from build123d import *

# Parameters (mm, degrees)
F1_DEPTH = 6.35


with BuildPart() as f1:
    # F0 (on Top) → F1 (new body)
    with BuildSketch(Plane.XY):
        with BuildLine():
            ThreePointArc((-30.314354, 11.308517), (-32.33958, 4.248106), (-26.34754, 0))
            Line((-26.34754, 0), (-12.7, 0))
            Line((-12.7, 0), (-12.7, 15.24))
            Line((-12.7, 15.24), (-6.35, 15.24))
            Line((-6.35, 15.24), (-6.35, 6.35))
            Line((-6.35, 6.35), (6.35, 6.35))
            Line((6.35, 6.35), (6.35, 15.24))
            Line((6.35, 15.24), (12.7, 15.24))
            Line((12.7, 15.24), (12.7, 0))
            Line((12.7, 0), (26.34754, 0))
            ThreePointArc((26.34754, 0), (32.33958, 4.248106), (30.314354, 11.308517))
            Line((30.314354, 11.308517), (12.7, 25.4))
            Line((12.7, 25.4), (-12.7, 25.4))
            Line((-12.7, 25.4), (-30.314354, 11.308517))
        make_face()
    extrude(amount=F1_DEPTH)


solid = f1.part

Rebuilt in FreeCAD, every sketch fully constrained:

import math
import FreeCAD as App
import Part
import Sketcher

V = App.Vector
Q = App.Units.Quantity

doc = App.newDocument("Part")
body = doc.addObject("PartDesign::Body", "Body")

# Sketch on XY plane
sketch1 = body.newObject("Sketcher::SketchObject", "Sketch")
sketch1.AttachmentSupport = (doc.getObject("XY_Plane"), [""])
sketch1.MapMode = "FlatFace"
sketch1.addGeometry([
    Part.ArcOfCircle(Part.Circle(V(-26, 6, 0), V(0, 0, 1), 6), math.radians(129), math.radians(270)),  # 0
    Part.LineSegment(V(-26, 0, 0), V(-13, 0, 0)),  # 1
    Part.LineSegment(V(-13, 0, 0), V(-13, 15, 0)),  # 2
    Part.LineSegment(V(-13, 15, 0), V(-6, 15, 0)),  # 3
    Part.LineSegment(V(-6, 15, 0), V(-6, 6, 0)),  # 4
    Part.LineSegment(V(-6, 6, 0), V(6, 6, 0)),  # 5
    Part.LineSegment(V(6, 6, 0), V(6, 15, 0)),  # 6
    Part.LineSegment(V(6, 15, 0), V(13, 15, 0)),  # 7
    Part.LineSegment(V(13, 15, 0), V(13, 0, 0)),  # 8
    Part.LineSegment(V(13, 0, 0), V(26, 0, 0)),  # 9
    Part.ArcOfCircle(Part.Circle(V(26, 6, 0), V(0, 0, 1), 6), math.radians(-90), math.radians(51)),  # 10
    Part.LineSegment(V(30, 11, 0), V(13, 25, 0)),  # 11
    Part.LineSegment(V(13, 25, 0), V(-13, 25, 0)),  # 12
    Part.LineSegment(V(-13, 25, 0), V(-30, 11, 0)),  # 13
], False)
sketch1.addConstraint([
    Sketcher.Constraint("Tangent", 0, 2, 1, 1),
    Sketcher.Constraint("Coincident", 1, 2, 2, 1),
    Sketcher.Constraint("Coincident", 2, 2, 3, 1),
    Sketcher.Constraint("Coincident", 3, 2, 4, 1),
    Sketcher.Constraint("Coincident", 4, 2, 5, 1),
    Sketcher.Constraint("Coincident", 5, 2, 6, 1),
    Sketcher.Constraint("Coincident", 6, 2, 7, 1),
    Sketcher.Constraint("Coincident", 7, 2, 8, 1),
    Sketcher.Constraint("Coincident", 8, 2, 9, 1),
    Sketcher.Constraint("Tangent", 9, 2, 10, 1),
    Sketcher.Constraint("Tangent", 10, 2, 11, 1),
    Sketcher.Constraint("Coincident", 11, 2, 12, 1),
    Sketcher.Constraint("Coincident", 12, 2, 13, 1),
    Sketcher.Constraint("Tangent", 13, 2, 0, 1),
    Sketcher.Constraint("Horizontal", 1),
    Sketcher.Constraint("Vertical", 2),
    Sketcher.Constraint("Horizontal", 3),
    Sketcher.Constraint("Vertical", 4),
    Sketcher.Constraint("Horizontal", 5),
    Sketcher.Constraint("Vertical", 6),
    Sketcher.Constraint("Horizontal", 7),
    Sketcher.Constraint("Vertical", 8),
    Sketcher.Constraint("Horizontal", 9),
    Sketcher.Constraint("Horizontal", 12),
    Sketcher.Constraint("Equal", 0, 10),
    Sketcher.Constraint("Symmetric", 1, 2, 8, 2, -1, 1),
    Sketcher.Constraint("Symmetric", 0, 3, 10, 3, -2),
    Sketcher.Constraint("Symmetric", 3, 2, 6, 2, -2),
    Sketcher.Constraint("Horizontal", 10, 3, 4, 2),
    Sketcher.Constraint("Horizontal", 10, 2, 13, 2),
    Sketcher.Constraint("Vertical", 8, 2, 11, 2),
    Sketcher.Constraint("DistanceX", 12, 2, 12, 1, Q("1 in")),
    Sketcher.Constraint("Radius", 0, Q("0.25 in")),
    Sketcher.Constraint("DistanceX", 5, 1, 5, 2, Q("0.5 in")),
    Sketcher.Constraint("DistanceY", 2, 1, 2, 2, Q("0.6 in")),
    Sketcher.Constraint("DistanceY", -1, 1, 11, 2, Q("1 in")),
    Sketcher.Constraint("DistanceX", 1, 1, 1, 2, 13.64754),
])
pad1 = body.newObject("PartDesign::Pad", "Pad")
pad1.Profile = sketch1
pad1.Length = Q("0.25 in")

doc.recompute()
